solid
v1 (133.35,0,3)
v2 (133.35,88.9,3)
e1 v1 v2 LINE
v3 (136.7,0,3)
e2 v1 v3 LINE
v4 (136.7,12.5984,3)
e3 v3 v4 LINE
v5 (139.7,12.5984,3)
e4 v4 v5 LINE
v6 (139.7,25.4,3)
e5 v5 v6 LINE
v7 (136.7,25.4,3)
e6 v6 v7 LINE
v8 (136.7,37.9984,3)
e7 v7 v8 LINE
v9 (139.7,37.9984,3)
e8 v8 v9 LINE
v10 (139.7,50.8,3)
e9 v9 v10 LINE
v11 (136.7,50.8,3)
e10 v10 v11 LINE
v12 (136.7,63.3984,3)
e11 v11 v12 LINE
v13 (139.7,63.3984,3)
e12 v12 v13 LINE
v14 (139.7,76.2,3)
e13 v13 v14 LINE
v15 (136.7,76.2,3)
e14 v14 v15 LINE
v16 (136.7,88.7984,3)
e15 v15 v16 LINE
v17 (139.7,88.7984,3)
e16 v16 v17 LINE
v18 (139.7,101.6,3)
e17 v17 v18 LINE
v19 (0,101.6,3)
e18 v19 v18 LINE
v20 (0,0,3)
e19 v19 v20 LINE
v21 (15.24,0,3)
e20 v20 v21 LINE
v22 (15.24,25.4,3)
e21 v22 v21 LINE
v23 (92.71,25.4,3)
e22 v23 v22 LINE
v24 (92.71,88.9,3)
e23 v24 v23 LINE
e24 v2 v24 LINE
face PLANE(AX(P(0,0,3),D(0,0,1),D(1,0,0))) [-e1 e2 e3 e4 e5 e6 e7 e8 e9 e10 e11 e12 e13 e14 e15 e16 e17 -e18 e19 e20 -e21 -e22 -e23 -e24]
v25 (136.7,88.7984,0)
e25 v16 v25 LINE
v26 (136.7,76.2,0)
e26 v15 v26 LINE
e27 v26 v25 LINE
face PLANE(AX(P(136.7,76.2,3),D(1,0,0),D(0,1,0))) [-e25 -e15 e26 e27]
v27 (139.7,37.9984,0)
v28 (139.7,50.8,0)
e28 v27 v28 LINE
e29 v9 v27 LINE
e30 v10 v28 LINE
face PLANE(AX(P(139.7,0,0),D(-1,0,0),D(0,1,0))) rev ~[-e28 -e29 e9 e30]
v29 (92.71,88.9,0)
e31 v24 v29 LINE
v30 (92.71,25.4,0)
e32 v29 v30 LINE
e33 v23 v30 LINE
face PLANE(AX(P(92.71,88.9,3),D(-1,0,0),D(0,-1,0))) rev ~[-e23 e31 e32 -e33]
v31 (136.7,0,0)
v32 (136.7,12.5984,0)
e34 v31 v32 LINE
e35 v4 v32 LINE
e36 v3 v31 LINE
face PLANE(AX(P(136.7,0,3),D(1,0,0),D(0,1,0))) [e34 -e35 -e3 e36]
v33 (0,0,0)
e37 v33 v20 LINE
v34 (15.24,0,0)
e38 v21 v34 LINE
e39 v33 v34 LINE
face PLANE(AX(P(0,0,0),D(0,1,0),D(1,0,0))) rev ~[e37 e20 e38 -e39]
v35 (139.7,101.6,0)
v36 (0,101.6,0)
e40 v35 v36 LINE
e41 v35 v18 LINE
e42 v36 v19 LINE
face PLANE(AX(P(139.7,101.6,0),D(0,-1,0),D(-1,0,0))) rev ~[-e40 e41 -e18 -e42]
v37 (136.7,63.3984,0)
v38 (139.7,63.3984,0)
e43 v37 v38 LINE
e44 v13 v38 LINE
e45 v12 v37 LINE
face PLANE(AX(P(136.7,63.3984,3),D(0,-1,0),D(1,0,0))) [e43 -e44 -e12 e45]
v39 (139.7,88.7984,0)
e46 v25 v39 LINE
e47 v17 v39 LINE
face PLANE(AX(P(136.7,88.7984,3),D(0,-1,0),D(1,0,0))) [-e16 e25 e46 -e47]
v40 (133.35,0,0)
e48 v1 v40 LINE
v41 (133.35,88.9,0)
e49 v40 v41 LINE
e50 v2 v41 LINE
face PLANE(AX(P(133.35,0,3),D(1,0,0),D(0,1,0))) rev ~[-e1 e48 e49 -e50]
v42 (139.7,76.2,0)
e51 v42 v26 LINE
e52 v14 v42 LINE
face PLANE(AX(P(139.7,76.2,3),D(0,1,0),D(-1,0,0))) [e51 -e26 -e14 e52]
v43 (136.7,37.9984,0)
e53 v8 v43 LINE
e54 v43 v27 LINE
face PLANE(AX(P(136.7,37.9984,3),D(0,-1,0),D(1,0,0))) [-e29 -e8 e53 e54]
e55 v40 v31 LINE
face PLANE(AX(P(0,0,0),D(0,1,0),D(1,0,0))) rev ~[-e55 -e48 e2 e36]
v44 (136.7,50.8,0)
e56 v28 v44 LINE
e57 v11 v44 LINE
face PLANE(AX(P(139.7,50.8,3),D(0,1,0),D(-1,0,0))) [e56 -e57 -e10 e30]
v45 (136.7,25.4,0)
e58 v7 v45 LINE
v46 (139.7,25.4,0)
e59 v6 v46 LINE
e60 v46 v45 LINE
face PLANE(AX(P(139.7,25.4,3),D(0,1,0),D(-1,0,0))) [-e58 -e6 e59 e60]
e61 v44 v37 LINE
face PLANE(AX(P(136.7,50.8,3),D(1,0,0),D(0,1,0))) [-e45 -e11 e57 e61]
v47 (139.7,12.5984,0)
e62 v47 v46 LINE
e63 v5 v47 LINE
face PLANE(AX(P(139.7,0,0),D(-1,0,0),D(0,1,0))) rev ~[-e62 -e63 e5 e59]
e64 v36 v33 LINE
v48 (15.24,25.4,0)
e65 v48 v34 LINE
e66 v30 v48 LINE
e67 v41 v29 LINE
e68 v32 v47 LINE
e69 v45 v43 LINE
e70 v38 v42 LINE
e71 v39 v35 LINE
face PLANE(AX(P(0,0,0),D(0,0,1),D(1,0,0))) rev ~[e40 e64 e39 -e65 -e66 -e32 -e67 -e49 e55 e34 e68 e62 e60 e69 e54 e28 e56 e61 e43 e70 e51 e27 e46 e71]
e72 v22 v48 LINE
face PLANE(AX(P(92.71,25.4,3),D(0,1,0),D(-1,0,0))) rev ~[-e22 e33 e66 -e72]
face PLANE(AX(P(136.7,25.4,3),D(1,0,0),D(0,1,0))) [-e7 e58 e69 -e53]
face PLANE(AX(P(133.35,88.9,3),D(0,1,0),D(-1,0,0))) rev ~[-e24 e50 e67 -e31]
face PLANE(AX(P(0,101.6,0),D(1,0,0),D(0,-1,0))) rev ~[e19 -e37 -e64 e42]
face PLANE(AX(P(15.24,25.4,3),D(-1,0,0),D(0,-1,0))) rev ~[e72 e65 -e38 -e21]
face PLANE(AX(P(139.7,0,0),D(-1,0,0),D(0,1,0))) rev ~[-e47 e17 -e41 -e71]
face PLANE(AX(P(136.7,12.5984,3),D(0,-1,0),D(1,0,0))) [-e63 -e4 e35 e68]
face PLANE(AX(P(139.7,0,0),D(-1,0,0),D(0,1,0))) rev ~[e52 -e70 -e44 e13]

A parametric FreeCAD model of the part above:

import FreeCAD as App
import Part
import Sketcher

V = App.Vector
Q = App.Units.Quantity


def add_polygon(sketch, points):
    """Adds a closed chain of lines whose ends are joined by coincident constraints."""
    first, n = sketch.GeometryCount, len(points)
    for a, b in zip(points, points[1:] + points[:1]):
        sketch.addGeometry(Part.LineSegment(App.Vector(*a, 0), App.Vector(*b, 0)), False)
    for i in range(n):
        sketch.addConstraint(Sketcher.Constraint("Coincident", first + i, 2, first + (i + 1) % n, 1))

doc = App.newDocument("Part")
body = doc.addObject("PartDesign::Body", "Body")

# Sketch on XY plane
sketch1 = body.newObject("Sketcher::SketchObject", "Sketch")
sketch1.AttachmentSupport = (doc.getObject("XY_Plane"), [""])
sketch1.MapMode = "FlatFace"
add_polygon(sketch1, [(0, 102), (0, 0), (140, 0), (140, 102)])  # lines 0-3
sketch1.addConstraint(Sketcher.Constraint("Vertical", 0))
sketch1.addConstraint(Sketcher.Constraint("Horizontal", 1))
sketch1.addConstraint(Sketcher.Constraint("Vertical", 2))
sketch1.addConstraint(Sketcher.Constraint("Horizontal", 3))
sketch1.addConstraint(Sketcher.Constraint("Coincident", 0, 2, -1, 1))
sketch1.addConstraint(Sketcher.Constraint("DistanceY", 0, 2, 0, 1, Q("4 in")))
sketch1.addConstraint(Sketcher.Constraint("DistanceX", 1, 1, 1, 2, Q("5.5 in")))
pad1 = body.newObject("PartDesign::Pad", "Pad")
pad1.Profile = sketch1
pad1.Length = Q("0.1181102 in")

# Sketch on XY plane
sketch2 = body.newObject("Sketcher::SketchObject", "Sketch001")
sketch2.AttachmentSupport = (doc.getObject("XY_Plane"), [""])
sketch2.MapMode = "FlatFace"
sketch2.AttachmentOffset = App.Placement(V(0, 0, 0.1181102 * 25.4), App.Rotation())
add_polygon(sketch2, [(93, 89), (93, 0), (133, 0), (133, 89)])  # lines 0-3
sketch2.addConstraint(Sketcher.Constraint("Vertical", 0))
sketch2.addConstraint(Sketcher.Constraint("Horizontal", 1))
sketch2.addConstraint(Sketcher.Constraint("Vertical", 2))
sketch2.addConstraint(Sketcher.Constraint("Horizontal", 3))
sketch2.addConstraint(Sketcher.Constraint("PointOnObject", 0, 2, -1))
sketch2.addConstraint(Sketcher.Constraint("DistanceX", 1, 1, 1, 2, Q("1.6 in")))
sketch2.addConstraint(Sketcher.Constraint("DistanceY", 0, 2, 0, 1, Q("3.5 in")))
sketch2.addConstraint(Sketcher.Constraint("DistanceX", -1, 1, 0, 2, Q("3.65 in")))
pocket1 = body.newObject("PartDesign::Pocket", "Pocket")
pocket1.Profile = sketch2
pocket1.Length = Q("0.1377953 in")

# Sketch on XY plane
sketch3 = body.newObject("Sketcher::SketchObject", "Sketch002")
sketch3.AttachmentSupport = (doc.getObject("XY_Plane"), [""])
sketch3.MapMode = "FlatFace"
sketch3.AttachmentOffset = App.Placement(V(0, 0, 0.1181102 * 25.4), App.Rotation())
add_polygon(sketch3, [(15, 25), (15, 0), (93, 0), (93, 25)])  # lines 0-3
sketch3.addConstraint(Sketcher.Constraint("Vertical", 0))
sketch3.addConstraint(Sketcher.Constraint("Horizontal", 1))
sketch3.addConstraint(Sketcher.Constraint("Vertical", 2))
sketch3.addConstraint(Sketcher.Constraint("Horizontal", 3))
sketch3.addConstraint(Sketcher.Constraint("PointOnObject", 0, 2, -1))
sketch3.addConstraint(Sketcher.Constraint("DistanceY", 0, 2, 0, 1, Q("1 in")))
sketch3.addConstraint(Sketcher.Constraint("DistanceX", -1, 1, 0, 2, Q("0.6 in")))
sketch3.addConstraint(Sketcher.Constraint("DistanceX", 1, 1, 1, 2, Q("3.05 in")))
pocket2 = body.newObject("PartDesign::Pocket", "Pocket001")
pocket2.Profile = sketch3
pocket2.Length = Q("0.1377953 in")

# Sketch on XY plane
sketch4 = body.newObject("Sketcher::SketchObject", "Sketch003")
sketch4.AttachmentSupport = (doc.getObject("XY_Plane"), [""])
sketch4.MapMode = "FlatFace"
sketch4.AttachmentOffset = App.Placement(V(0, 0, 0.1181102 * 25.4), App.Rotation())
add_polygon(sketch4, [(136.7, 114.2), (136.7, 101.6), (139.7, 101.6), (139.7, 114.2)])  # lines 0-3
add_polygon(sketch4, [(139.7, 76.2), (139.7, 88.8), (136.7, 88.8), (136.7, 76.2)])  # lines 4-7
add_polygon(sketch4, [(136.7, 12.6), (136.7, 0), (139.7, 0), (139.7, 12.6)])  # lines 8-11
add_polygon(sketch4, [(139.7, 50.8), (139.7, 63.4), (136.7, 63.4), (136.7, 50.8)])  # lines 12-15
add_polygon(sketch4, [(136.7, 25.4), (139.7, 25.4), (139.7, 38), (136.7, 38)])  # lines 16-19
sketch4.addConstraint(Sketcher.Constraint("Vertical", 0))
sketch4.addConstraint(Sketcher.Constraint("Horizontal", 1))
sketch4.addConstraint(Sketcher.Constraint("Vertical", 2))
sketch4.addConstraint(Sketcher.Constraint("Horizontal", 3))
sketch4.addConstraint(Sketcher.Constraint("Vertical", 4))
sketch4.addConstraint(Sketcher.Constraint("Horizontal", 5))
sketch4.addConstraint(Sketcher.Constraint("Vertical", 6))
sketch4.addConstraint(Sketcher.Constraint("Horizontal", 7))
sketch4.addConstraint(Sketcher.Constraint("Vertical", 8))
sketch4.addConstraint(Sketcher.Constraint("Horizontal", 9))
sketch4.addConstraint(Sketcher.Constraint("Vertical", 10))
sketch4.addConstraint(Sketcher.Constraint("Horizontal", 11))
sketch4.addConstraint(Sketcher.Constraint("Vertical", 12))
sketch4.addConstraint(Sketcher.Constraint("Horizontal", 13))
sketch4.addConstraint(Sketcher.Constraint("Vertical", 14))
sketch4.addConstraint(Sketcher.Constraint("Horizontal", 15))
sketch4.addConstraint(Sketcher.Constraint("Horizontal", 16))
sketch4.addConstraint(Sketcher.Constraint("Vertical", 17))
sketch4.addConstraint(Sketcher.Constraint("Horizontal", 18))
sketch4.addConstraint(Sketcher.Constraint("Vertical", 19))
sketch4.addConstraint(Sketcher.Constraint("PointOnObject", 8, 2, -1))
sketch4.addConstraint(Sketcher.Constraint("Vertical", 2, 2, 4, 2))
sketch4.addConstraint(Sketcher.Constraint("Vertical", 3, 2, 5, 2))
sketch4.addConstraint(Sketcher.Constraint("Vertical", 6, 2, 8, 2))
sketch4.addConstraint(Sketcher.Constraint("Vertical", 7, 2, 9, 2))
sketch4.addConstraint(Sketcher.Constraint("Vertical", 10, 2, 12, 2))
sketch4.addConstraint(Sketcher.Constraint("Vertical", 11, 2, 13, 2))
sketch4.addConstraint(Sketcher.Constraint("Vertical", 15, 2, 16, 2))
sketch4.addConstraint(Sketcher.Constraint("Vertical", 14, 2, 18, 2))
sketch4.addConstraint(Sketcher.Constraint("Equal", 2, 4))
sketch4.addConstraint(Sketcher.Constraint("Equal", 6, 8))
sketch4.addConstraint(Sketcher.Constraint("Equal", 10, 12))
sketch4.addConstraint(Sketcher.Constraint("Equal", 14, 17))
sketch4.addConstraint(Sketcher.Constraint("DistanceY", -1, 1, 16, 2, Q("1 in")))
sketch4.addConstraint(Sketcher.Constraint("DistanceY", 4, 2, 2, 2, Q("1 in")))
sketch4.addConstraint(Sketcher.Constraint("DistanceY", 12, 2, 4, 2, Q("1 in")))
sketch4.addConstraint(Sketcher.Constraint("DistanceY", 16, 2, 15, 2, Q("1 in")))
sketch4.addConstraint(Sketcher.Constraint("DistanceY", 0, 2, 0, 1, Q("0.496 in")))
sketch4.addConstraint(Sketcher.Constraint("DistanceX", 1, 1, 1, 2, Q("0.1181 in")))
sketch4.addConstraint(Sketcher.Constraint("DistanceX", -1, 1, 1, 2, Q("5.5 in")))
pocket3 = body.newObject("PartDesign::Pocket", "Pocket002")
pocket3.Profile = sketch4
pocket3.Length = Q("0.1181102 in")

doc.recompute()
